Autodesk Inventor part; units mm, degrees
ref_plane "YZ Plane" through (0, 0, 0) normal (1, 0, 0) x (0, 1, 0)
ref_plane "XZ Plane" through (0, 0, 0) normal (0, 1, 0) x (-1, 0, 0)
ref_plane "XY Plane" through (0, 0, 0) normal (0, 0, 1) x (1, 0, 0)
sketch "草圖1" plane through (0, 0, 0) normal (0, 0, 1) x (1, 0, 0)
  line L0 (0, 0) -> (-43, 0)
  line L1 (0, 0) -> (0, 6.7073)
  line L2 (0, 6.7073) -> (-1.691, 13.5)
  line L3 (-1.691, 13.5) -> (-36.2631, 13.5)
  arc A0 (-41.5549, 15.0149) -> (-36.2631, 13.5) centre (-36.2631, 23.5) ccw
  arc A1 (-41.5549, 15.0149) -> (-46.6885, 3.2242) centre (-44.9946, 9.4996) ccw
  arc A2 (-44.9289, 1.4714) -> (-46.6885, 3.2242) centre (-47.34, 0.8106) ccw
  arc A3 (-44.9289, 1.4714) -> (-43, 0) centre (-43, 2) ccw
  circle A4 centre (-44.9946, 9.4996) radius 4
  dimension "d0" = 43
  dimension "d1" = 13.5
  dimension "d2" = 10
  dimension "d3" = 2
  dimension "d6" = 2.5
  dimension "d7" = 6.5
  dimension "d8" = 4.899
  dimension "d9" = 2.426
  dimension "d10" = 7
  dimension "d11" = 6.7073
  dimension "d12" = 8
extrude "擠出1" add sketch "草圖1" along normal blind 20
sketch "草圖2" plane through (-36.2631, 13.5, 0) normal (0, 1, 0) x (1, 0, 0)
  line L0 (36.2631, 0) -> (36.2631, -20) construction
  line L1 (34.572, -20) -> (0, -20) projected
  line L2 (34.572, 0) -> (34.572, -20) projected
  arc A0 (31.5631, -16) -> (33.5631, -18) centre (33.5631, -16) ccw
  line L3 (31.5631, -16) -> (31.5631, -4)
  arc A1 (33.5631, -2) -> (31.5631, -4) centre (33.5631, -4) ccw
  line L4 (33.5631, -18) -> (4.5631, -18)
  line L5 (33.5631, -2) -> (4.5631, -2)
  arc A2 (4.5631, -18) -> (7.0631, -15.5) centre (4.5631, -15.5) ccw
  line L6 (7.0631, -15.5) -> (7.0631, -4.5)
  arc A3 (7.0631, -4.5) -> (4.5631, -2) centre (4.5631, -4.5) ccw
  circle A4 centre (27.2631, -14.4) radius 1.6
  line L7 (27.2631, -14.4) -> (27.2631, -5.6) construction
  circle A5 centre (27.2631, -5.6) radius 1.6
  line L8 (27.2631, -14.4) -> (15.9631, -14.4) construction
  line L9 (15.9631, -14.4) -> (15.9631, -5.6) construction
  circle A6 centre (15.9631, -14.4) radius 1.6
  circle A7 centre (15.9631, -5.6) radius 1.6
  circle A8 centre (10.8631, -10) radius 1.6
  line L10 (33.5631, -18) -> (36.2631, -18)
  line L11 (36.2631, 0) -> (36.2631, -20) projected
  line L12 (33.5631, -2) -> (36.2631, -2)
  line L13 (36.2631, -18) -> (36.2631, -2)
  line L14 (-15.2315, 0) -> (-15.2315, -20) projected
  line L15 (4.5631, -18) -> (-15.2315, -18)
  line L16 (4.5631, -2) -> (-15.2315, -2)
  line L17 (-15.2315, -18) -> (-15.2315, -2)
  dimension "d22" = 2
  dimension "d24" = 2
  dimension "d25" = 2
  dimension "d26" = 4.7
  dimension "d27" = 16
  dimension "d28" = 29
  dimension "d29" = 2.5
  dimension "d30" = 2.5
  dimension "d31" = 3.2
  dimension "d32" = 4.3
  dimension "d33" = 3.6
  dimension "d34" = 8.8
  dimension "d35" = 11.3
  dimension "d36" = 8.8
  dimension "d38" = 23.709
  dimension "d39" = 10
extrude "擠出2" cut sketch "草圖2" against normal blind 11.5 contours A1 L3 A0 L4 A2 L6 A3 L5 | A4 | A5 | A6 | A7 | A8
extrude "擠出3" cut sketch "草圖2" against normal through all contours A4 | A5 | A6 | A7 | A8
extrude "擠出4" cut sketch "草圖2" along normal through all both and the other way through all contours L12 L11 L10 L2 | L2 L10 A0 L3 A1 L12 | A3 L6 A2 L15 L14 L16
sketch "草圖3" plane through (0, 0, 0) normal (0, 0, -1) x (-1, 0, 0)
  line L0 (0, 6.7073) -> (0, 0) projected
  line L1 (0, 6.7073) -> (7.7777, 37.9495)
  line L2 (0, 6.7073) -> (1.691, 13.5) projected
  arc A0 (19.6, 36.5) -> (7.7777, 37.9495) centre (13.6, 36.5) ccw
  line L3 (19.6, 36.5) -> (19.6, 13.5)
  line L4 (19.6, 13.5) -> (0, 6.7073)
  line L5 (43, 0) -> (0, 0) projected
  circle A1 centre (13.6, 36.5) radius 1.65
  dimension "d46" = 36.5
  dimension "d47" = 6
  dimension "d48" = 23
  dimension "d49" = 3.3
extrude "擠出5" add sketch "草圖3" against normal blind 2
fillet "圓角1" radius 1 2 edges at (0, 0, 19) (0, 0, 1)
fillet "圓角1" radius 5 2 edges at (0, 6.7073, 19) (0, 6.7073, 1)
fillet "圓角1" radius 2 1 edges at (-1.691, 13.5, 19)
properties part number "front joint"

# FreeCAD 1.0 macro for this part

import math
import FreeCAD as App
import Part
import Sketcher

V = App.Vector
Q = App.Units.Quantity


def edges_at(feature, points):
    """Names of the edges that pass closest to the given points."""
    edges = feature.Shape.Edges
    near = lambda p: min(range(len(edges)), key=lambda i: edges[i].distToShape(Part.Vertex(*p))[0])
    return sorted({f"Edge{near(p) + 1}" for p in points})

doc = App.newDocument("Part")
params = doc.addObject("Spreadsheet::Sheet", "Params")
for row, (alias, value) in enumerate([
    ("sketch1_diameter", "8 mm"),
    ("sketch1_radius", "10 mm"),
    ("sketch1_radius2", "2 mm"),
    ("sketch1_radius3", "6.5 mm"),
    ("sketch1_radius4", "2.5 mm"),
    ("pad1_length", "20 mm"),
    ("sketch2_radius", "2 mm"),
    ("sketch2_radius2", "2.5 mm"),
    ("sketch2_width", "29 mm"),
    ("pocket1_length", "11.5 mm"),
    ("sketch3_diameter", "3.2 mm"),
    ("sketch4_radius", "2 mm"),
    ("sketch4_radius2", "2.5 mm"),
    ("sketch4_height", "16 mm"),
    ("sketch5_radius", "6 mm"),
    ("sketch5_diameter", "3.3 mm"),
    ("sketch5_height", "23 mm"),
    ("pad2_length", "2 mm"),
    ("fillet_radius", "1 mm"),
    ("fillet2_radius", "5 mm"),
    ("fillet3_radius", "2 mm"),
], start=1):
    params.set(f"A{row}", alias)
    params.set(f"B{row}", "=" + value)
    params.setAlias(f"B{row}", alias)

body = doc.addObject("PartDesign::Body", "Body")

# Sketch on XY plane
sketch1 = body.newObject("Sketcher::SketchObject", "Sketch")
sketch1.AttachmentSupport = (doc.getObject("XY_Plane"), [""])
sketch1.MapMode = "FlatFace"
sketch1.addGeometry(Part.LineSegment(V(-43, 0, 0), V(0, 0, 0)), False)
sketch1.addGeometry(Part.LineSegment(V(0, 0, 0), V(0, 6.7, 0)), False)
sketch1.addGeometry(Part.LineSegment(V(0, 6.7, 0), V(-1.7, 13.5, 0)), False)
sketch1.addGeometry(Part.LineSegment(V(-1.7, 13.5, 0), V(-36.3, 13.5, 0)), False)
sketch1.addGeometry(Part.ArcOfCircle(Part.Circle(V(-36.3, 23.5, 0), V(0, 0, 1), 10), math.radians(-122), math.radians(-90)), False)
sketch1.addGeometry(Part.ArcOfCircle(Part.Circle(V(-45, 9.5, 0), V(0, 0, 1), 6.5), math.radians(58), math.radians(255)), False)
sketch1.addGeometry(Part.ArcOfCircle(Part.Circle(V(-47.3, 0.8, 0), V(0, 0, 1), 2.5), math.radians(15), math.radians(75)), False)
sketch1.addGeometry(Part.ArcOfCircle(Part.Circle(V(-43, 2, 0), V(0, 0, 1), 2), math.radians(-165), math.radians(-90)), False)
sketch1.addGeometry(Part.Circle(V(-45, 9.5, 0), V(0, 0, 1), 4), False)
sketch1.addConstraint(Sketcher.Constraint("Coincident", 0, 2, 1, 1))
sketch1.addConstraint(Sketcher.Constraint("Coincident", 1, 2, 2, 1))
sketch1.addConstraint(Sketcher.Constraint("Coincident", 2, 2, 3, 1))
sketch1.addConstraint(Sketcher.Constraint("Tangent", 3, 2, 4, 2))
sketch1.addConstraint(Sketcher.Constraint("Tangent", 4, 1, 5, 1))
sketch1.addConstraint(Sketcher.Constraint("Tangent", 5, 2, 6, 2))
sketch1.addConstraint(Sketcher.Constraint("Tangent", 6, 1, 7, 1))
sketch1.addConstraint(Sketcher.Constraint("Tangent", 7, 2, 0, 1))
sketch1.addConstraint(Sketcher.Constraint("Horizontal", 0))
sketch1.addConstraint(Sketcher.Constraint("Vertical", 1))
sketch1.addConstraint(Sketcher.Constraint("Horizontal", 3))
sketch1.addConstraint(Sketcher.Constraint("Coincident", 0, 2, -1, 1))
sketch1.addConstraint(Sketcher.Constraint("Coincident", 8, 3, 5, 3))
sketch1.addConstraint(Sketcher.Constraint("Diameter", 8, Q("8 mm")))
sketch1.addConstraint(Sketcher.Constraint("Radius", 4, Q("10 mm")))
sketch1.addConstraint(Sketcher.Constraint("Radius", 7, Q("2 mm")))
sketch1.addConstraint(Sketcher.Constraint("Radius", 5, Q("6.5 mm")))
sketch1.addConstraint(Sketcher.Constraint("Radius", 6, Q("2.5 mm")))
sketch1.addConstraint(Sketcher.Constraint("DistanceX", 0, 1, 0, 2, Q("43 mm")))
sketch1.addConstraint(Sketcher.Constraint("Distance", 2, Q("7 mm")))
sketch1.addConstraint(Sketcher.Constraint("DistanceY", -1, 1, 2, 2, Q("13.5 mm")))
sketch1.addConstraint(Sketcher.Constraint("DistanceY", 1, 1, 1, 2, Q("6.7073 mm")))
sketch1.addConstraint(Sketcher.Constraint("DistanceX", 3, 2, 3, 1, Q("34.572 mm")))
sketch1.addConstraint(Sketcher.Constraint("DistanceX", 6, 3, -1, 1, Q("47.34 mm")))
sketch1.setExpression("Constraints[13]", "Params.sketch1_diameter")
sketch1.setExpression("Constraints[14]", "Params.sketch1_radius")
sketch1.setExpression("Constraints[15]", "Params.sketch1_radius2")
sketch1.setExpression("Constraints[16]", "Params.sketch1_radius3")
sketch1.setExpression("Constraints[17]", "Params.sketch1_radius4")
pad1 = body.newObject("PartDesign::Pad", "Pad")
pad1.Profile = sketch1
pad1.setExpression("Length", "Params.pad1_length")

# Sketch on XZ plane
sketch2 = body.newObject("Sketcher::SketchObject", "Sketch001")
sketch2.AttachmentSupport = (doc.getObject("XZ_Plane"), [""])
sketch2.MapMode = "FlatFace"
sketch2.AttachmentOffset = App.Placement(V(0, 0, -13.5), App.Rotation())
sketch2.addGeometry(Part.ArcOfCircle(Part.Circle(V(-2.7, 4, 0), V(0, 0, 1), 2), math.radians(180), math.radians(270)), False)
sketch2.addGeometry(Part.LineSegment(V(-2.7, 2, 0), V(-31.7, 2, 0)), False)
sketch2.addGeometry(Part.ArcOfCircle(Part.Circle(V(-31.7, 4.5, 0), V(0, 0, 1), 2.5), math.radians(-90), math.radians(0)), False)
sketch2.addGeometry(Part.LineSegment(V(-29.2, 4.5, 0), V(-29.2, 15.5, 0)), False)
sketch2.addGeometry(Part.ArcOfCircle(Part.Circle(V(-31.7, 15.5, 0), V(0, 0, 1), 2.5), math.radians(0), math.radians(90)), False)
sketch2.addGeometry(Part.LineSegment(V(-31.7, 18, 0), V(-2.7, 18, 0)), False)
sketch2.addGeometry(Part.ArcOfCircle(Part.Circle(V(-2.7, 16, 0), V(0, 0, 1), 2), math.radians(90), math.radians(180)), False)
sketch2.addGeometry(Part.LineSegment(V(-4.7, 16, 0), V(-4.7, 4, 0)), False)
sketch2.addConstraint(Sketcher.Constraint("Tangent", 0, 2, 1, 1))
sketch2.addConstraint(Sketcher.Constraint("Tangent", 1, 2, 2, 1))
sketch2.addConstraint(Sketcher.Constraint("Tangent", 2, 2, 3, 1))
sketch2.addConstraint(Sketcher.Constraint("Tangent", 3, 2, 4, 1))
sketch2.addConstraint(Sketcher.Constraint("Tangent", 4, 2, 5, 1))
sketch2.addConstraint(Sketcher.Constraint("Tangent", 5, 2, 6, 1))
sketch2.addConstraint(Sketcher.Constraint("Tangent", 6, 2, 7, 1))
sketch2.addConstraint(Sketcher.Constraint("Tangent", 7, 2, 0, 1))
sketch2.addConstraint(Sketcher.Constraint("Horizontal", 1))
sketch2.addConstraint(Sketcher.Constraint("Vertical", 3))
sketch2.addConstraint(Sketcher.Constraint("Horizontal", 5))
sketch2.addConstraint(Sketcher.Constraint("Vertical", 7))
sketch2.addConstraint(Sketcher.Constraint("Equal", 2, 4))
sketch2.addConstraint(Sketcher.Constraint("Equal", 0, 6))
sketch2.addConstraint(Sketcher.Constraint("Radius", 0, Q("2 mm")))
sketch2.addConstraint(Sketcher.Constraint("Radius", 2, Q("2.5 mm")))
sketch2.addConstraint(Sketcher.Constraint("DistanceX", 1, 2, 1, 1, Q("29 mm")))
sketch2.addConstraint(Sketcher.Constraint("DistanceY", -1, 1, 6, 3, Q("16 mm")))
sketch2.addConstraint(Sketcher.Constraint("DistanceY", -1, 1, 0, 2, Q("2 mm")))
sketch2.addConstraint(Sketcher.Constraint("DistanceX", 6, 2, -1, 1, Q("4.7 mm")))
sketch2.setExpression("Constraints[14]", "Params.sketch2_radius")
sketch2.setExpression("Constraints[15]", "Params.sketch2_radius2")
sketch2.setExpression("Constraints[16]", "Params.sketch2_width")
pocket1 = body.newObject("PartDesign::Pocket", "Pocket")
pocket1.Profile = sketch2
pocket1.setExpression("Length", "Params.pocket1_length")
pocket1.Reversed = True

# Sketch on XZ plane
sketch3 = body.newObject("Sketcher::SketchObject", "Sketch002")
sketch3.AttachmentSupport = (doc.getObject("XZ_Plane"), [""])
sketch3.MapMode = "FlatFace"
sketch3.AttachmentOffset = App.Placement(V(0, 0, -13.5), App.Rotation())
sketch3.addGeometry(Part.Circle(V(-9, 14.4, 0), V(0, 0, 1), 1.6), False)
sketch3.addGeometry(Part.Circle(V(-9, 5.6, 0), V(0, 0, 1), 1.6), False)
sketch3.addGeometry(Part.Circle(V(-20.3, 14.4, 0), V(0, 0, 1), 1.6), False)
sketch3.addGeometry(Part.Circle(V(-20.3, 5.6, 0), V(0, 0, 1), 1.6), False)
sketch3.addGeometry(Part.Circle(V(-25.4, 10, 0), V(0, 0, 1), 1.6), False)
sketch3.addConstraint(Sketcher.Constraint("Equal", 0, 1))
sketch3.addConstraint(Sketcher.Constraint("Equal", 1, 2))
sketch3.addConstraint(Sketcher.Constraint("Equal", 2, 3))
sketch3.addConstraint(Sketcher.Constraint("Equal", 3, 4))
sketch3.addConstraint(Sketcher.Constraint("Horizontal", 0, 3, 2, 3))
sketch3.addConstraint(Sketcher.Constraint("Horizontal", 1, 3, 3, 3))
sketch3.addConstraint(Sketcher.Constraint("Vertical", 0, 3, 1, 3))
sketch3.addConstraint(Sketcher.Constraint("Vertical", 2, 3, 3, 3))
sketch3.addConstraint(Sketcher.Constraint("Diameter", 0, Q("3.2 mm")))
sketch3.addConstraint(Sketcher.Constraint("DistanceY", -1, 1, 4, 3, Q("10 mm")))
sketch3.addConstraint(Sketcher.Constraint("DistanceY", 1, 3, 0, 3, Q("8.8 mm")))
sketch3.addConstraint(Sketcher.Constraint("DistanceX", 2, 3, 0, 3, Q("11.3 mm")))
sketch3.addConstraint(Sketcher.Constraint("DistanceX", 0, 3, -1, 1, Q("9 mm")))
sketch3.addConstraint(Sketcher.Constraint("DistanceY", -1, 1, 0, 3, Q("14.4 mm")))
sketch3.addConstraint(Sketcher.Constraint("DistanceX", 4, 3, -1, 1, Q("25.4 mm")))
sketch3.setExpression("Constraints[8]", "Params.sketch3_diameter")
pocket2 = body.newObject("PartDesign::Pocket", "Pocket001")
pocket2.Profile = sketch3
pocket2.Type = "ThroughAll"
pocket2.Reversed = True

# Sketch on XZ plane
sketch4 = body.newObject("Sketcher::SketchObject", "Sketch003")
sketch4.AttachmentSupport = (doc.getObject("XZ_Plane"), [""])
sketch4.MapMode = "FlatFace"
sketch4.AttachmentOffset = App.Placement(V(0, 0, -13.5), App.Rotation())
sketch4.addGeometry(Part.LineSegment(V(0, 2, 0), V(-2.7, 2, 0)), False)
sketch4.addGeometry(Part.ArcOfCircle(Part.Circle(V(-2.7, 4, 0), V(0, 0, 1), 2), math.radians(180), math.radians(270)), False)
sketch4.addGeometry(Part.LineSegment(V(-4.7, 4, 0), V(-4.7, 16, 0)), False)
sketch4.addGeometry(Part.ArcOfCircle(Part.Circle(V(-2.7, 16, 0), V(0, 0, 1), 2), math.radians(90), math.radians(180)), False)
sketch4.addGeometry(Part.LineSegment(V(-2.7, 18, 0), V(0, 18, 0)), False)
sketch4.addGeometry(Part.LineSegment(V(0, 18, 0), V(0, 2, 0)), False)
sketch4.addGeometry(Part.ArcOfCircle(Part.Circle(V(-31.7, 4.5, 0), V(0, 0, 1), 2.5), math.radians(-90), math.radians(0)), False)
sketch4.addGeometry(Part.LineSegment(V(-31.7, 2, 0), V(-51.5, 2, 0)), False)
sketch4.addGeometry(Part.LineSegment(V(-51.5, 2, 0), V(-51.5, 18, 0)), False)
sketch4.addGeometry(Part.LineSegment(V(-51.5, 18, 0), V(-31.7, 18, 0)), False)
sketch4.addGeometry(Part.ArcOfCircle(Part.Circle(V(-31.7, 15.5, 0), V(0, 0, 1), 2.5), math.radians(0), math.radians(90)), False)
sketch4.addGeometry(Part.LineSegment(V(-29.2, 15.5, 0), V(-29.2, 4.5, 0)), False)
sketch4.addConstraint(Sketcher.Constraint("Tangent", 0, 2, 1, 2))
sketch4.addConstraint(Sketcher.Constraint("Tangent", 1, 1, 2, 1))
sketch4.addConstraint(Sketcher.Constraint("Tangent", 2, 2, 3, 2))
sketch4.addConstraint(Sketcher.Constraint("Tangent", 3, 1, 4, 1))
sketch4.addConstraint(Sketcher.Constraint("Coincident", 4, 2, 5, 1))
sketch4.addConstraint(Sketcher.Constraint("Coincident", 5, 2, 0, 1))
sketch4.addConstraint(Sketcher.Constraint("Tangent", 6, 1, 7, 1))
sketch4.addConstraint(Sketcher.Constraint("Coincident", 7, 2, 8, 1))
sketch4.addConstraint(Sketcher.Constraint("Coincident", 8, 2, 9, 1))
sketch4.addConstraint(Sketcher.Constraint("Tangent", 9, 2, 10, 2))
sketch4.addConstraint(Sketcher.Constraint("Tangent", 10, 1, 11, 1))
sketch4.addConstraint(Sketcher.Constraint("Tangent", 11, 2, 6, 2))
sketch4.addConstraint(Sketcher.Constraint("Horizontal", 0))
sketch4.addConstraint(Sketcher.Constraint("Vertical", 2))
sketch4.addConstraint(Sketcher.Constraint("Horizontal", 4))
sketch4.addConstraint(Sketcher.Constraint("Vertical", 5))
sketch4.addConstraint(Sketcher.Constraint("Horizontal", 7))
sketch4.addConstraint(Sketcher.Constraint("Vertical", 8))
sketch4.addConstraint(Sketcher.Constraint("Horizontal", 9))
sketch4.addConstraint(Sketcher.Constraint("Vertical", 11))
sketch4.addConstraint(Sketcher.Constraint("Equal", 1, 3))
sketch4.addConstraint(Sketcher.Constraint("Equal", 6, 10))
sketch4.addConstraint(Sketcher.Constraint("PointOnObject", 4, 2, -2))
sketch4.addConstraint(Sketcher.Constraint("Horizontal", 5, 2, 6, 1))
sketch4.addConstraint(Sketcher.Constraint("Horizontal", 4, 2, 8, 2))
sketch4.addConstraint(Sketcher.Constraint("Radius", 1, Q("2 mm")))
sketch4.addConstraint(Sketcher.Constraint("Radius", 6, Q("2.5 mm")))
sketch4.addConstraint(Sketcher.Constraint("DistanceY", 5, 2, 5, 1, Q("16 mm")))
sketch4.addConstraint(Sketcher.Constraint("DistanceY", -1, 1, 3, 3, Q("16 mm")))
sketch4.addConstraint(Sketcher.Constraint("DistanceX", 6, 3, 1, 3, Q("29 mm")))
sketch4.addConstraint(Sketcher.Constraint("DistanceX", 1, 1, -1, 1, Q("4.7 mm")))
sketch4.addConstraint(Sketcher.Constraint("DistanceX", 7, 2, 7, 1, Q("19.7946 mm")))
sketch4.setExpression("Constraints[25]", "Params.sketch4_radius")
sketch4.setExpression("Constraints[26]", "Params.sketch4_radius2")
sketch4.setExpression("Constraints[27]", "Params.sketch4_height")
pocket3 = body.newObject("PartDesign::Pocket", "Pocket002")
pocket3.Profile = sketch4
pocket3.Type = "ThroughAll"
pocket3.Midplane = True

# Sketch on XY plane
sketch5 = body.newObject("Sketcher::SketchObject", "Sketch004")
sketch5.AttachmentSupport = (doc.getObject("XY_Plane"), [""])
sketch5.MapMode = "FlatFace"
sketch5.addGeometry(Part.LineSegment(V(-7.8, 37.9, 0), V(0, 6.7, 0)), False)
sketch5.addGeometry(Part.LineSegment(V(0, 6.7, 0), V(-19.6, 13.5, 0)), False)
sketch5.addGeometry(Part.LineSegment(V(-19.6, 13.5, 0), V(-19.6, 36.5, 0)), False)
sketch5.addGeometry(Part.ArcOfCircle(Part.Circle(V(-13.6, 36.5, 0), V(0, 0, 1), 6), math.radians(14), math.radians(180)), False)
sketch5.addGeometry(Part.Circle(V(-13.6, 36.5, 0), V(0, 0, 1), 1.6), False)
sketch5.addConstraint(Sketcher.Constraint("Coincident", 0, 2, 1, 1))
sketch5.addConstraint(Sketcher.Constraint("Coincident", 1, 2, 2, 1))
sketch5.addConstraint(Sketcher.Constraint("Tangent", 2, 2, 3, 2))
sketch5.addConstraint(Sketcher.Constraint("Tangent", 3, 1, 0, 1))
sketch5.addConstraint(Sketcher.Constraint("Vertical", 2))
sketch5.addConstraint(Sketcher.Constraint("Coincident", 4, 3, 3, 3))
sketch5.addConstraint(Sketcher.Constraint("PointOnObject", 0, 2, -2))
sketch5.addConstraint(Sketcher.Constraint("Radius", 3, Q("6 mm")))
sketch5.addConstraint(Sketcher.Constraint("Diameter", 4, Q("3.3 mm")))
sketch5.addConstraint(Sketcher.Constraint("DistanceY", 2, 1, 2, 2, Q("23 mm")))
sketch5.addConstraint(Sketcher.Constraint("DistanceY", -1, 1, 3, 3, Q("36.5 mm")))
sketch5.addConstraint(Sketcher.Constraint("DistanceX", 3, 3, -1, 1, Q("13.6 mm")))
sketch5.addConstraint(Sketcher.Constraint("Angle", 0, Q("-76.0205 deg")))
sketch5.setExpression("Constraints[7]", "Params.sketch5_radius")
sketch5.setExpression("Constraints[8]", "Params.sketch5_diameter")
sketch5.setExpression("Constraints[9]", "Params.sketch5_height")
pad2 = body.newObject("PartDesign::Pad", "Pad001")
pad2.Profile = sketch5
pad2.setExpression("Length", "Params.pad2_length")
doc.recompute()

fillet = body.newObject("PartDesign::Fillet", "Fillet")
fillet.Base = (pad2, edges_at(pad2, [(0, 0, 19), (0, 0, 1)]))
fillet.setExpression("Radius", "Params.fillet_radius")
doc.recompute()

fillet2 = body.newObject("PartDesign::Fillet", "Fillet001")
fillet2.Base = (fillet, edges_at(fillet, [(0, 6.707, 19), (0, 6.707, 1)]))
fillet2.setExpression("Radius", "Params.fillet2_radius")
doc.recompute()

fillet3 = body.newObject("PartDesign::Fillet", "Fillet002")
fillet3.Base = (fillet2, edges_at(fillet2, [(-1.691, 13.5, 19)]))
fillet3.setExpression("Radius", "Params.fillet3_radius")

doc.recompute()
